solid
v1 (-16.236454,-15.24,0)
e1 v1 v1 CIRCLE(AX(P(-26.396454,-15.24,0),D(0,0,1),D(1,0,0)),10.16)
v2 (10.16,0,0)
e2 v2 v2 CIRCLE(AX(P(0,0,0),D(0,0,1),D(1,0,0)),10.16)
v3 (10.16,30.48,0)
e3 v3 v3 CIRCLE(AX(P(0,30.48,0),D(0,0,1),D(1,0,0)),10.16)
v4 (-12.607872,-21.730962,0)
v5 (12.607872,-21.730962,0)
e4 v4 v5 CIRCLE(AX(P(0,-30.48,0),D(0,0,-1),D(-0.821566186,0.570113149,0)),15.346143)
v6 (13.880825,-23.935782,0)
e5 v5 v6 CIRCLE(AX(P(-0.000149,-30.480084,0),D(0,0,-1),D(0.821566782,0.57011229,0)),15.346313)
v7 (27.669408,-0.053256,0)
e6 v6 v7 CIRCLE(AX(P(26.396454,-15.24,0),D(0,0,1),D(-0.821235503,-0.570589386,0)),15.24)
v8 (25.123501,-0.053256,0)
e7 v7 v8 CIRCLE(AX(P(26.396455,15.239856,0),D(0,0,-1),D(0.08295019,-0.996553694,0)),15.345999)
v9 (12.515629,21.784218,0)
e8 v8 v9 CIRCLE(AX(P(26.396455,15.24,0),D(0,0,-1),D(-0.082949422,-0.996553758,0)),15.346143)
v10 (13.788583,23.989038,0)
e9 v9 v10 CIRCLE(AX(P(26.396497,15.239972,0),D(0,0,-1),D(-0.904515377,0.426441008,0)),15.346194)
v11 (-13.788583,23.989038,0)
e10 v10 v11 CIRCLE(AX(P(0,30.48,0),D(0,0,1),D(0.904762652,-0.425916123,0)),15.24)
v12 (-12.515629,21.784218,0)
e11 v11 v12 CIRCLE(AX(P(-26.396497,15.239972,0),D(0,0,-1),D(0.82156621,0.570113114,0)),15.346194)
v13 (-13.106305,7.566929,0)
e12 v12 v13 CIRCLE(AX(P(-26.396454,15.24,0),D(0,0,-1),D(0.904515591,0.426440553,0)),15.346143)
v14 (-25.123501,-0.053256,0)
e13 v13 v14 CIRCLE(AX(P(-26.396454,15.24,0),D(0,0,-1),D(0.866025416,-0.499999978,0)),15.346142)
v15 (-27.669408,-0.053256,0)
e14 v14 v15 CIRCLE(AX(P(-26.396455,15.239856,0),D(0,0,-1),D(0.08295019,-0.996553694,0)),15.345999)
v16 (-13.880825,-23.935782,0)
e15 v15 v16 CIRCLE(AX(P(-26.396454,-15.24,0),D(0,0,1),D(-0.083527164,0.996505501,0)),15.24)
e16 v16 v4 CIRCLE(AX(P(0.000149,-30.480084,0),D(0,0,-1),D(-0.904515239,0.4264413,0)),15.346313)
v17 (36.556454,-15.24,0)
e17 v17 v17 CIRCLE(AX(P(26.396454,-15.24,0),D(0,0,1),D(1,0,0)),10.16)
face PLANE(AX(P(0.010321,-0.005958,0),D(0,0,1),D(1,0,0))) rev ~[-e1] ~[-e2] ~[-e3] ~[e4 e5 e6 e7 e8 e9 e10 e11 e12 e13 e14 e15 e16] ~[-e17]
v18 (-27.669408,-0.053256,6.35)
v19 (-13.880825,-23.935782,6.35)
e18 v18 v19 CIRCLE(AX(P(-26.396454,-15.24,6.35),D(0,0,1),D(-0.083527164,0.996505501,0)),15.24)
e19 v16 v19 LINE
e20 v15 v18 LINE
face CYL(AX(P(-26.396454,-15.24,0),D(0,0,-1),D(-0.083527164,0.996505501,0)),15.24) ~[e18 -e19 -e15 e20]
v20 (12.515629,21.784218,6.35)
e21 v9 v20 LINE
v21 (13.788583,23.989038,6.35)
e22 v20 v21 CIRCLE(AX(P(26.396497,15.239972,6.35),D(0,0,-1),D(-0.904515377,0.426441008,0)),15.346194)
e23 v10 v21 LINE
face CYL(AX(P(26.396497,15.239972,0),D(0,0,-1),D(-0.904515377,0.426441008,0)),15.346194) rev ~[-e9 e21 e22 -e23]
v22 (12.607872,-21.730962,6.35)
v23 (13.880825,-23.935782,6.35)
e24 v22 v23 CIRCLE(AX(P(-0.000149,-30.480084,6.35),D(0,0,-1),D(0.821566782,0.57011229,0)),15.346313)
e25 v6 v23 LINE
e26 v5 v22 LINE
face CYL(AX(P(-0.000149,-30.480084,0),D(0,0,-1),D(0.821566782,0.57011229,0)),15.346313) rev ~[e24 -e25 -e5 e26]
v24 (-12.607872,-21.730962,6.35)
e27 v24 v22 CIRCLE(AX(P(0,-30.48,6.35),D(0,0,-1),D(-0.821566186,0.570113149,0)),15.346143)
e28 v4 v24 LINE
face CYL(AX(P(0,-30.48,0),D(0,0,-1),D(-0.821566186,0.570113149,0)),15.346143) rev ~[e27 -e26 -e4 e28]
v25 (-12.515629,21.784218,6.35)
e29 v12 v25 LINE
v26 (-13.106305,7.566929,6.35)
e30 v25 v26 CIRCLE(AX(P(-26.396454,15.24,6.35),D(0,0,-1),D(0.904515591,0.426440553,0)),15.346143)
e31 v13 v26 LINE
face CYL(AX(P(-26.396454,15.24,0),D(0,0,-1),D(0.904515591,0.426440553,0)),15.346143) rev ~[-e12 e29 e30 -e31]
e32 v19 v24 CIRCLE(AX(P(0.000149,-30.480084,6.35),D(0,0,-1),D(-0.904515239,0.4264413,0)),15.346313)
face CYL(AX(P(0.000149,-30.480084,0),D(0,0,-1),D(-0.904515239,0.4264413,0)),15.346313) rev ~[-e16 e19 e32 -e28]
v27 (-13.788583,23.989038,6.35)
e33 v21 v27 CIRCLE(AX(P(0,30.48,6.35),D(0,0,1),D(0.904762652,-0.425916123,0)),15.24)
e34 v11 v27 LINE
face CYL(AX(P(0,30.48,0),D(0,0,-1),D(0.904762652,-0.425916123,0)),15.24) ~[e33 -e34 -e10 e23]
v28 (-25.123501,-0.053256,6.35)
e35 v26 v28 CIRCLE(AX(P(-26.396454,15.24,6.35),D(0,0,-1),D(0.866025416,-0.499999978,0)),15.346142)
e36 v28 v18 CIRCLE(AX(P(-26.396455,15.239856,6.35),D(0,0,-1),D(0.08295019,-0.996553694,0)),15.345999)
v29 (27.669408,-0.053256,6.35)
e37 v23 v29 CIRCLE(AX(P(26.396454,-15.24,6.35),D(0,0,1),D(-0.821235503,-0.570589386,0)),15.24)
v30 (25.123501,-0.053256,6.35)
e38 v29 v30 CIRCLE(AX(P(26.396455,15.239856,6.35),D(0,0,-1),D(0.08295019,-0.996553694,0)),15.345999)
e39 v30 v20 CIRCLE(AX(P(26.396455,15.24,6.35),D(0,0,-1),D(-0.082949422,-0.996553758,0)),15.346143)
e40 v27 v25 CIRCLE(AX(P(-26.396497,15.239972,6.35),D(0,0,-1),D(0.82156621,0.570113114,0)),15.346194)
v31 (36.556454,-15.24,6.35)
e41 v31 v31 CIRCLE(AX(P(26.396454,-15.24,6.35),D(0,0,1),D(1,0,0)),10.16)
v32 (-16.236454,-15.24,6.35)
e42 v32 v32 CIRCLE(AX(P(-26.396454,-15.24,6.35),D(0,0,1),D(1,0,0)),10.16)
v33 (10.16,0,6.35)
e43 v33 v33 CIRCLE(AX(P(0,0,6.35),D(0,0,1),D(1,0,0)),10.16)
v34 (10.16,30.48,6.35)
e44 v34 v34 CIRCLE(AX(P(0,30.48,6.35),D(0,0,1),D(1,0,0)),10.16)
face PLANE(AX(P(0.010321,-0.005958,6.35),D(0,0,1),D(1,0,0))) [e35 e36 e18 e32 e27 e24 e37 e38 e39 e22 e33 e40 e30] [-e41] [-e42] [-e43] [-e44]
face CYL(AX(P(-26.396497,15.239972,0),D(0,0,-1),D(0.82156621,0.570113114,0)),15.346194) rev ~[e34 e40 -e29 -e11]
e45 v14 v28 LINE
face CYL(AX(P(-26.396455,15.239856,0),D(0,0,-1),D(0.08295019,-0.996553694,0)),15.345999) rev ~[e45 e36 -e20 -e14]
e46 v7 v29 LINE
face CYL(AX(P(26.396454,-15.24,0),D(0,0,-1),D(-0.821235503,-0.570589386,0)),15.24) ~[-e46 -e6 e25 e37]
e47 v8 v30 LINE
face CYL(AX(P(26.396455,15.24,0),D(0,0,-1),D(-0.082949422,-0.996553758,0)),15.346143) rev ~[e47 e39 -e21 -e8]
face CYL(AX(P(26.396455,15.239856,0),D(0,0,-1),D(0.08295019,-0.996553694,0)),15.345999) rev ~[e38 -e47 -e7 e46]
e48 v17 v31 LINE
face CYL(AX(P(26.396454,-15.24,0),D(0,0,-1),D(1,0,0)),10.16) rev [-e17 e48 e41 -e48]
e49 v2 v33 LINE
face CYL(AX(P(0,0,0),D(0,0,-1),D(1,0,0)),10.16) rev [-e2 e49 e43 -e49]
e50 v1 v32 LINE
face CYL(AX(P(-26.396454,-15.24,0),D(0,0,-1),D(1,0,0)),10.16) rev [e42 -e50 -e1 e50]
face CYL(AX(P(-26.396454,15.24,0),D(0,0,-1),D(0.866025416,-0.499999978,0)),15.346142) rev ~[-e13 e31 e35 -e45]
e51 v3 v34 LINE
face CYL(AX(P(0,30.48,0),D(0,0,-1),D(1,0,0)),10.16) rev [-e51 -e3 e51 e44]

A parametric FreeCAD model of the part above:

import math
import FreeCAD as App
import Part
import Sketcher

V = App.Vector
Q = App.Units.Quantity

doc = App.newDocument("Part")
body = doc.addObject("PartDesign::Body", "Body")

# Sketch on XY plane
sketch1 = doc.addObject("Sketcher::SketchObject", "Sketch")
body.addObject(sketch1)
sketch1.AttachmentSupport = (doc.XY_Plane, [""])
sketch1.MapMode = "FlatFace"
sketch1.addGeometry([
    Part.ArcOfCircle(Part.Circle(V(26.396455, 15.24, 0), V(0, 0, 1), 15.346143), math.radians(154.758121), math.radians(265.241881)),  # 0
    Part.ArcOfCircle(Part.Circle(V(26.396497, 15.239972, 0), V(0, 0, 1), 15.346194), math.radians(145.241886), math.radians(154.758091)),  # 1
    Part.ArcOfCircle(Part.Circle(V(0, 30.48, 0), V(0, 0, 1), 15.24), math.radians(-25.208665), math.radians(205.208665)),  # 2
    Part.ArcOfCircle(Part.Circle(V(-26.396497, 15.239972, 0), V(0, 0, 1), 15.346194), math.radians(25.241909), math.radians(34.758114)),  # 3
    Part.ArcOfCircle(Part.Circle(V(-26.396454, 15.24, 0), V(0, 0, 1), 15.346143), math.radians(-30.000001), math.radians(25.24188)),  # 4
    Part.ArcOfCircle(Part.Circle(V(-26.396454, 15.24, 0), V(0, 0, 1), 15.346142), math.radians(-85.241882), math.radians(-29.999999)),  # 5
    Part.ArcOfCircle(Part.Circle(V(-26.396455, 15.239856, 0), V(0, 0, 1), 15.345999), math.radians(-94.758163), math.radians(-85.241837)),  # 6
    Part.ArcOfCircle(Part.Circle(V(-26.396454, -15.24, 0), V(0, 0, 1), 15.24), math.radians(94.791336), math.radians(325.208664)),  # 7
    Part.ArcOfCircle(Part.Circle(V(0.000149, -30.480084, 0), V(0, 0, 1), 15.346313), math.radians(145.241944), math.radians(154.758073)),  # 8
    Part.ArcOfCircle(Part.Circle(V(0, -30.48, 0), V(0, 0, 1), 15.346143), math.radians(34.758116), math.radians(145.241884)),  # 9
    Part.ArcOfCircle(Part.Circle(V(-0.000149, -30.480084, 0), V(0, 0, 1), 15.346313), math.radians(25.241927), math.radians(34.758056)),  # 10
    Part.ArcOfCircle(Part.Circle(V(26.396454, -15.24, 0), V(0, 0, 1), 15.24), math.radians(-145.208664), math.radians(85.208664)),  # 11
    Part.ArcOfCircle(Part.Circle(V(26.396455, 15.239856, 0), V(0, 0, 1), 15.345999), math.radians(-94.758163), math.radians(-85.241837)),  # 12
    Part.Circle(V(-26.396454, -15.24, 0), V(0, 0, 1), 10.16),  # 13
    Part.Circle(V(26.396454, -15.24, 0), V(0, 0, 1), 10.16),  # 14
    Part.Circle(V(0, 0, 0), V(0, 0, 1), 10.16),  # 15
    Part.Circle(V(0, 30.48, 0), V(0, 0, 1), 10.16),  # 16
], False)
sketch1.addConstraint([
    Sketcher.Constraint("Coincident", 0, 1, 1, 2),
    Sketcher.Constraint("Coincident", 1, 1, 2, 1),
    Sketcher.Constraint("Coincident", 2, 2, 3, 2),
    Sketcher.Constraint("Coincident", 3, 1, 4, 2),
    Sketcher.Constraint("Coincident", 4, 1, 5, 2),
    Sketcher.Constraint("Coincident", 5, 1, 6, 2),
    Sketcher.Constraint("Coincident", 6, 1, 7, 1),
    Sketcher.Constraint("Coincident", 7, 2, 8, 2),
    Sketcher.Constraint("Coincident", 8, 1, 9, 2),
    Sketcher.Constraint("Coincident", 9, 1, 10, 2),
    Sketcher.Constraint("Coincident", 10, 1, 11, 1),
    Sketcher.Constraint("Coincident", 11, 2, 12, 2),
    Sketcher.Constraint("Coincident", 12, 1, 0, 2),
    Sketcher.Constraint("Coincident", 15, 3, -1, 1),
    Sketcher.Constraint("Coincident", 5, 3, 4, 3),
    Sketcher.Constraint("Coincident", 13, 3, 7, 3),
    Sketcher.Constraint("Coincident", 14, 3, 11, 3),
    Sketcher.Constraint("Coincident", 16, 3, 2, 3),
    Sketcher.Constraint("PointOnObject", 2, 3, -2),
    Sketcher.Constraint("PointOnObject", 9, 3, -2),
    Sketcher.Constraint("Diameter", 13, Q("0.8 in")),
    Sketcher.Constraint("Diameter", 14, Q("0.8 in")),
    Sketcher.Constraint("Diameter", 15, Q("0.8 in")),
    Sketcher.Constraint("Diameter", 16, Q("0.8 in")),
    Sketcher.Constraint("Radius", 2, Q("0.6 in")),
    Sketcher.Constraint("Radius", 7, Q("0.6 in")),
    Sketcher.Constraint("Radius", 11, Q("0.6 in")),
    Sketcher.Constraint("DistanceY", -1, 1, 0, 3, Q("0.6 in")),
    Sketcher.Constraint("DistanceY", -1, 1, 2, 3, Q("1.2 in")),
    Sketcher.Constraint("DistanceY", -1, 1, 4, 3, Q("0.6 in")),
    Sketcher.Constraint("DistanceY", 7, 3, -1, 1, Q("0.6 in")),
    Sketcher.Constraint("DistanceY", 9, 3, -1, 1, Q("1.2 in")),
    Sketcher.Constraint("DistanceY", 11, 3, -1, 1, Q("0.6 in")),
    Sketcher.Constraint("Radius", 6, Q("15.345999 mm")),
    Sketcher.Constraint("Radius", 12, Q("15.345999 mm")),
    Sketcher.Constraint("Radius", 0, Q("15.346143 mm")),
    Sketcher.Constraint("Radius", 1, Q("15.346194 mm")),
    Sketcher.Constraint("Radius", 3, Q("15.346194 mm")),
    Sketcher.Constraint("Radius", 4, Q("15.346143 mm")),
    Sketcher.Constraint("Radius", 8, Q("15.346313 mm")),
    Sketcher.Constraint("Radius", 9, Q("15.346143 mm")),
    Sketcher.Constraint("Radius", 10, Q("15.346313 mm")),
    Sketcher.Constraint("DistanceX", 5, 1, -1, 1, Q("25.123501 mm")),
    Sketcher.Constraint("DistanceX", -1, 1, 12, 1, Q("25.123501 mm")),
    Sketcher.Constraint("DistanceX", 10, 3, 8, 3, Q("0.000298 mm")),
    Sketcher.Constraint("DistanceY", 10, 3, 7, 2, Q("6.544302 mm")),
    Sketcher.Constraint("DistanceY", 8, 3, 7, 2, Q("6.544302 mm")),
    Sketcher.Constraint("DistanceY", 8, 3, 10, 1, Q("6.544302 mm")),
    Sketcher.Constraint("DistanceY", -1, 1, 1, 3, Q("15.239972 mm")),
    Sketcher.Constraint("DistanceY", -1, 1, 3, 3, Q("15.239972 mm")),
    Sketcher.Constraint("DistanceX", -1, 1, 0, 1, Q("12.515629 mm")),
    Sketcher.Constraint("DistanceY", -1, 1, 0, 1, Q("21.784218 mm")),
    Sketcher.Constraint("DistanceY", -1, 1, 2, 2, Q("23.989038 mm")),
    Sketcher.Constraint("DistanceX", 3, 1, -1, 1, Q("12.515629 mm")),
    Sketcher.Constraint("DistanceY", -1, 1, 4, 1, Q("7.566929 mm")),
    Sketcher.Constraint("DistanceX", 6, 1, -1, 1, Q("27.669408 mm")),
    Sketcher.Constraint("DistanceY", 8, 1, -1, 1, Q("21.730962 mm")),
    Sketcher.Constraint("DistanceY", 9, 1, -1, 1, Q("21.730962 mm")),
    Sketcher.Constraint("DistanceY", 8, 3, 12, 3, Q("45.719939 mm")),
])
pad1 = doc.addObject("PartDesign::Pad", "Pad")
body.addObject(pad1)
pad1.Profile = sketch1
pad1.Length = Q("0.25 in")

doc.recompute()
